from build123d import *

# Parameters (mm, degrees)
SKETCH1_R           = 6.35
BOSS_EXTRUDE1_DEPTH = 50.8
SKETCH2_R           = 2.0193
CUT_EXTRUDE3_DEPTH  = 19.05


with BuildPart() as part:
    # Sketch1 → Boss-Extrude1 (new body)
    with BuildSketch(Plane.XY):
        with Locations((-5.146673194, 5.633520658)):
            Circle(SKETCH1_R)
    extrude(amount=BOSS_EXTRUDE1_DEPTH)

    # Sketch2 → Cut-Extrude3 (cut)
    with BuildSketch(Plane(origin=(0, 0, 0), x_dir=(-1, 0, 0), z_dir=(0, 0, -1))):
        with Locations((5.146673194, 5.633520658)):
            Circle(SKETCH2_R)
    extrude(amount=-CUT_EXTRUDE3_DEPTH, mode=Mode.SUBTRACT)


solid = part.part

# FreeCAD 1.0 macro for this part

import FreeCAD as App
import Part
import Sketcher
Q = App.Units.Quantity

doc = App.newDocument("Part")
body = doc.addObject("PartDesign::Body", "Body")

sketch1 = body.newObject("Sketcher::SketchObject", "Sketch")
sketch1.AttachmentSupport = (doc.getObject("XY_Plane"), [""])
sketch1.MapMode = "FlatFace"
sketch1.addGeometry(Part.Circle(App.Vector(-5, 6, 0), App.Vector(0, 0, 1), 6), False)
sketch1.addConstraint([
    Sketcher.Constraint("Diameter", 0, Q("0.5 in")),
    Sketcher.Constraint("DistanceY", -1, 1, 0, 3, 5.633521),
    Sketcher.Constraint("DistanceX", 0, 3, -1, 1, 5.146673),
])
pad1 = body.newObject("PartDesign::Pad", "Pad")
pad1.Profile = sketch1
pad1.Length = Q("2 in")

sketch2 = body.newObject("Sketcher::SketchObject", "Sketch001")
sketch2.AttachmentSupport = (doc.getObject("XY_Plane"), [""])
sketch2.MapMode = "FlatFace"
sketch2.addGeometry(Part.Circle(App.Vector(-5.1, 5.6, 0), App.Vector(0, 0, 1), 2), False)
sketch2.addConstraint([
    Sketcher.Constraint("Diameter", 0, Q("0.159 in")),
    Sketcher.Constraint("DistanceY", -1, 1, 0, 3, 5.633521),
    Sketcher.Constraint("DistanceX", 0, 3, -1, 1, 5.146673),
])
pocket1 = body.newObject("PartDesign::Pocket", "Pocket")
pocket1.Profile = sketch2
pocket1.Length = Q("0.75 in")
pocket1.Reversed = True

doc.recompute()
